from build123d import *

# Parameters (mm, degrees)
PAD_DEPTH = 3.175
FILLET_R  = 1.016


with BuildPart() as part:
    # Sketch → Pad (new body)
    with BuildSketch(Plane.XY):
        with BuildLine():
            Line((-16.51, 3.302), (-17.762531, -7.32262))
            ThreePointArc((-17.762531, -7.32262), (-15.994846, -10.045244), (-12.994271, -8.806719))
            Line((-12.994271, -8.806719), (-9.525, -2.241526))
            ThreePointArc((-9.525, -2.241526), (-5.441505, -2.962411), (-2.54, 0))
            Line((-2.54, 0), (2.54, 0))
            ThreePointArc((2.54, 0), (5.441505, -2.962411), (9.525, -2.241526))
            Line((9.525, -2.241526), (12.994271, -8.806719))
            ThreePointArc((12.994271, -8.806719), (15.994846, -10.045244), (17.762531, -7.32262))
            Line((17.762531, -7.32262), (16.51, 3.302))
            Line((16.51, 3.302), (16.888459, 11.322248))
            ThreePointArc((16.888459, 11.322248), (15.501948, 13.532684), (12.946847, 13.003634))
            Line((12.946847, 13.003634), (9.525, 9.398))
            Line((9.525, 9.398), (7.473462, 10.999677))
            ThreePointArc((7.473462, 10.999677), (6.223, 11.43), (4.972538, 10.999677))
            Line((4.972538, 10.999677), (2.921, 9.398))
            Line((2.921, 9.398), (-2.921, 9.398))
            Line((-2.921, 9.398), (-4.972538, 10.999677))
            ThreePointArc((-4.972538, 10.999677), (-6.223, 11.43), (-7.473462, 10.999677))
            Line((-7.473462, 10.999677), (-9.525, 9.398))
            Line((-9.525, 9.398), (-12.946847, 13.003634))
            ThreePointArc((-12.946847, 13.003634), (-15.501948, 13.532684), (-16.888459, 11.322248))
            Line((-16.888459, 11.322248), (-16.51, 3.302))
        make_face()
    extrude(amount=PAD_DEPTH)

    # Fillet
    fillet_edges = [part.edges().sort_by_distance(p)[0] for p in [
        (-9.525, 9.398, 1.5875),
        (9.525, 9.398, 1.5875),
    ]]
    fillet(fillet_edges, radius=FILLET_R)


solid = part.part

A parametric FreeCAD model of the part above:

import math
import FreeCAD as App
import Part
import Sketcher
from FreeCAD import Vector
Q = App.Units.Quantity


def edges_at(feature, points):
    """Names of the edges that pass closest to the given points."""
    edges = feature.Shape.Edges
    near = lambda p: min(range(len(edges)), key=lambda i: edges[i].distToShape(Part.Vertex(*p))[0])
    return sorted({f"Edge{near(p) + 1}" for p in points})

doc = App.newDocument("Part")
body = doc.addObject("PartDesign::Body", "Body")

# Sketch on XY plane
sketch1 = body.newObject("Sketcher::SketchObject", "Sketch")
sketch1.AttachmentSupport = (doc.getObject("XY_Plane"), [""])
sketch1.MapMode = "FlatFace"
sketch1.addGeometry([
    Part.LineSegment(Vector(-16.51, 3.302, 0), Vector(-17.762531, -7.32262, 0)),  # 0
    Part.ArcOfCircle(Part.Circle(Vector(-15.24, -7.620001, 0), Vector(0, 0, 1), 2.54), math.radians(173.276449), math.radians(332.146524)),  # 1
    Part.LineSegment(Vector(-12.994271, -8.806719, 0), Vector(-9.525, -2.241526, 0)),  # 2
    Part.ArcOfCircle(Part.Circle(Vector(-6.79971, 1.27, 0), Vector(0, 0, 1), 4.445), math.radians(-127.814986), math.radians(-16.601555)),  # 3
    Part.LineSegment(Vector(-2.54, 0, 0), Vector(2.54, 0, 0)),  # 4
    Part.ArcOfCircle(Part.Circle(Vector(6.79971, 1.27, 0), Vector(0, 0, 1), 4.445), math.radians(-163.398445), math.radians(-52.185014)),  # 5
    Part.LineSegment(Vector(9.525, -2.241526, 0), Vector(12.994271, -8.806719, 0)),  # 6
    Part.ArcOfCircle(Part.Circle(Vector(15.24, -7.620001, 0), Vector(0, 0, 1), 2.54), math.radians(-152.146524), math.radians(6.723551)),  # 7
    Part.LineSegment(Vector(17.762531, -7.32262, 0), Vector(16.51, 3.302, 0)),  # 8
    Part.LineSegment(Vector(16.51, 3.302, 0), Vector(16.888459, 11.322248, 0)),  # 9
    Part.ArcOfCircle(Part.Circle(Vector(14.605, 11.43, 0), Vector(0, 0, 1), 2.286), math.radians(-2.701675), math.radians(136.498083)),  # 10
    Part.LineSegment(Vector(12.946847, 13.003634, 0), Vector(9.525, 9.398, 0)),  # 11
    Part.LineSegment(Vector(9.525, 9.398, 0), Vector(7.473462, 10.999677, 0)),  # 12
    Part.ArcOfCircle(Part.Circle(Vector(6.223, 9.398, 0), Vector(0, 0, 1), 2.032), math.radians(52.020122), math.radians(127.979878)),  # 13
    Part.LineSegment(Vector(4.972538, 10.999677, 0), Vector(2.921, 9.398, 0)),  # 14
    Part.LineSegment(Vector(2.921, 9.398, 0), Vector(-2.921, 9.398, 0)),  # 15
    Part.LineSegment(Vector(-2.921, 9.398, 0), Vector(-4.972538, 10.999677, 0)),  # 16
    Part.ArcOfCircle(Part.Circle(Vector(-6.223, 9.398, 0), Vector(0, 0, 1), 2.032), math.radians(52.020122), math.radians(127.979878)),  # 17
    Part.LineSegment(Vector(-7.473462, 10.999677, 0), Vector(-9.525, 9.398, 0)),  # 18
    Part.LineSegment(Vector(-9.525, 9.398, 0), Vector(-12.946847, 13.003634, 0)),  # 19
    Part.ArcOfCircle(Part.Circle(Vector(-14.605, 11.43, 0), Vector(0, 0, 1), 2.286), math.radians(43.501917), math.radians(182.701675)),  # 20
    Part.LineSegment(Vector(-16.888459, 11.322248, 0), Vector(-16.51, 3.302, 0)),  # 21
], False)
sketch1.addConstraint([
    Sketcher.Constraint("Tangent", 0, 2, 1, 1),
    Sketcher.Constraint("Tangent", 1, 2, 2, 1),
    Sketcher.Constraint("Coincident", 2, 2, 3, 1),
    Sketcher.Constraint("Coincident", 3, 2, 4, 1),
    Sketcher.Constraint("Coincident", 4, 2, 5, 1),
    Sketcher.Constraint("Coincident", 5, 2, 6, 1),
    Sketcher.Constraint("Tangent", 6, 2, 7, 1),
    Sketcher.Constraint("Tangent", 7, 2, 8, 1),
    Sketcher.Constraint("Coincident", 8, 2, 9, 1),
    Sketcher.Constraint("Tangent", 9, 2, 10, 1),
    Sketcher.Constraint("Tangent", 10, 2, 11, 1),
    Sketcher.Constraint("Coincident", 11, 2, 12, 1),
    Sketcher.Constraint("Tangent", 12, 2, 13, 1),
    Sketcher.Constraint("Tangent", 13, 2, 14, 1),
    Sketcher.Constraint("Coincident", 14, 2, 15, 1),
    Sketcher.Constraint("Coincident", 15, 2, 16, 1),
    Sketcher.Constraint("Tangent", 16, 2, 17, 1),
    Sketcher.Constraint("Tangent", 17, 2, 18, 1),
    Sketcher.Constraint("Coincident", 18, 2, 19, 1),
    Sketcher.Constraint("Tangent", 19, 2, 20, 1),
    Sketcher.Constraint("Tangent", 20, 2, 21, 1),
    Sketcher.Constraint("Coincident", 21, 2, 0, 1),
    Sketcher.Constraint("Horizontal", 4),
    Sketcher.Constraint("Horizontal", 15),
    Sketcher.Constraint("Equal", 3, 5),
    Sketcher.Constraint("Equal", 1, 7),
    Sketcher.Constraint("Equal", 13, 17),
    Sketcher.Constraint("Equal", 10, 20),
    Sketcher.Constraint("Symmetric", 3, 2, 4, 2, -1, 1),
    Sketcher.Constraint("Symmetric", 1, 3, 7, 3, -2),
    Sketcher.Constraint("Symmetric", 13, 3, 17, 3, -2),
    Sketcher.Constraint("Symmetric", 10, 3, 20, 3, -2),
    Sketcher.Constraint("Symmetric", 2, 2, 5, 2, -2),
    Sketcher.Constraint("Symmetric", 11, 2, 18, 2, -2),
    Sketcher.Constraint("Symmetric", 8, 2, 21, 2, -2),
    Sketcher.Constraint("Parallel", 12, 16),
    Sketcher.Constraint("Parallel", 14, 18),
    Sketcher.Constraint("Horizontal", 17, 3, 11, 2),
    Sketcher.Constraint("Horizontal", 11, 2, 14, 2),
    Sketcher.Constraint("Vertical", 5, 2, 11, 2),
    Sketcher.Constraint("Radius", 1, Q("0.1 in")),
    Sketcher.Constraint("Radius", 10, Q("0.09 in")),
    Sketcher.Constraint("Radius", 13, Q("0.08 in")),
    Sketcher.Constraint("DistanceX", 4, 1, 4, 2, Q("0.2 in")),
    Sketcher.Constraint("Radius", 3, Q("0.175 in")),
    Sketcher.Constraint("DistanceX", 15, 2, 15, 1, Q("0.23 in")),
    Sketcher.Constraint("DistanceX", 1, 3, -1, 1, Q("0.6 in")),
    Sketcher.Constraint("DistanceY", 1, 3, -1, 1, Q("0.3 in")),
    Sketcher.Constraint("DistanceY", 5, 3, 10, 3, Q("0.4 in")),
    Sketcher.Constraint("DistanceX", 11, 2, 10, 3, Q("0.2 in")),
    Sketcher.Constraint("DistanceY", -1, 1, 3, 3, Q("0.05 in")),
    Sketcher.Constraint("DistanceY", -1, 1, 13, 3, Q("0.37 in")),
    Sketcher.Constraint("DistanceX", -1, 1, 8, 2, Q("0.65 in")),
    Sketcher.Constraint("DistanceY", -1, 1, 8, 2, Q("0.13 in")),
    Sketcher.Constraint("DistanceX", 13, 3, 10, 3, Q("0.33 in")),
])
pad1 = body.newObject("PartDesign::Pad", "Pad")
pad1.Profile = sketch1
pad1.Length = Q("0.125 in")
doc.recompute()

fillet = body.newObject("PartDesign::Fillet", "Fillet")
fillet.Base = (pad1, edges_at(pad1, [(-9.525, 9.398, 1.587), (9.525, 9.398, 1.587)]))
fillet.Radius = Q("0.04 in")

doc.recompute()
